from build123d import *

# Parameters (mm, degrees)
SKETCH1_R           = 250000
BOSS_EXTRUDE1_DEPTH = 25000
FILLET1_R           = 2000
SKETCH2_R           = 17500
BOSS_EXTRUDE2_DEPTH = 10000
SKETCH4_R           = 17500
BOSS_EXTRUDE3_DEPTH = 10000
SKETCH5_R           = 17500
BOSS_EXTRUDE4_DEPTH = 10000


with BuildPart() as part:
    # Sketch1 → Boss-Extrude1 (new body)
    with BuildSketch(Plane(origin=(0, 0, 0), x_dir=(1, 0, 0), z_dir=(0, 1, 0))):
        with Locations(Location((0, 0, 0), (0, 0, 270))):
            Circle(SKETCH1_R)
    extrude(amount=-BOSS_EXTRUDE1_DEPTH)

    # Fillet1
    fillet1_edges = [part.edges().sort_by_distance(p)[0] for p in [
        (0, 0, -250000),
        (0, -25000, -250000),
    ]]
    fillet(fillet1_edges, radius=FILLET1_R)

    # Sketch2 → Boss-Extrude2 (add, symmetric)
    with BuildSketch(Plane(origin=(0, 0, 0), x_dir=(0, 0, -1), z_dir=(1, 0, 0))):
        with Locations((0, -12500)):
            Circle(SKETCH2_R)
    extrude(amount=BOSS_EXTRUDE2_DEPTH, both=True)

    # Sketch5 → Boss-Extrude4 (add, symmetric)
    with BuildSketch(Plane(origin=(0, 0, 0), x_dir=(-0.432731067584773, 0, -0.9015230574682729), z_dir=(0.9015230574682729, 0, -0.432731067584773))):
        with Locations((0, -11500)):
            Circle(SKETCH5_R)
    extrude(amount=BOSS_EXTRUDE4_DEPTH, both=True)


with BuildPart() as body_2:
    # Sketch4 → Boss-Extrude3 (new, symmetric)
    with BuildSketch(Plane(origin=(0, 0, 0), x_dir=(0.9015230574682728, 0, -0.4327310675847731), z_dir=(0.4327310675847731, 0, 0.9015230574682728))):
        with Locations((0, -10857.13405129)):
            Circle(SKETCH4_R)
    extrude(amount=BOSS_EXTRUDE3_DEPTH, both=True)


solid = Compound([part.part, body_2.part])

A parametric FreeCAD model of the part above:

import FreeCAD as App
import Part
import Sketcher
from FreeCAD import Vector


def edges_at(feature, points):
    """Names of the edges that pass closest to the given points."""
    edges = feature.Shape.Edges
    near = lambda p: min(range(len(edges)), key=lambda i: edges[i].distToShape(Part.Vertex(*p))[0])
    return sorted({f"Edge{near(p) + 1}" for p in points})

doc = App.newDocument("Part")
body = doc.addObject("PartDesign::Body", "Body")

# Sketch on XZ plane
sketch1 = body.newObject("Sketcher::SketchObject", "Sketch")
sketch1.AttachmentSupport = (doc.getObject("XZ_Plane"), [""])
sketch1.MapMode = "FlatFace"
sketch1.addGeometry(Part.Circle(Vector(0, 0, 0), Vector(0, 0, 1), 250000), False)
sketch1.addConstraint(Sketcher.Constraint("Coincident", 0, 3, -1, 1))
sketch1.addConstraint(Sketcher.Constraint("Diameter", 0, 500000.0))
pad1 = body.newObject("PartDesign::Pad", "Pad")
pad1.Profile = sketch1
pad1.Length = 25000
doc.recompute()

fillet = body.newObject("PartDesign::Fillet", "Fillet")
fillet.Base = (pad1, edges_at(pad1, [(0, 0, -250000), (0, -25000, -250000)]))
fillet.Radius = 2000

# Sketch on YZ plane
sketch2 = body.newObject("Sketcher::SketchObject", "Sketch001")
sketch2.AttachmentSupport = (doc.getObject("YZ_Plane"), [""])
sketch2.MapMode = "FlatFace"
sketch2.addGeometry(Part.Circle(Vector(-12500, 0, 0), Vector(0, 0, 1), 17500), False)
sketch2.addConstraint(Sketcher.Constraint("PointOnObject", 0, 3, -1))
sketch2.addConstraint(Sketcher.Constraint("Diameter", 0, 35000.0))
sketch2.addConstraint(Sketcher.Constraint("DistanceX", 0, 3, -1, 1, 12500.0))
pad2 = body.newObject("PartDesign::Pad", "Pad001")
pad2.Profile = sketch2
pad2.Length = 20000
pad2.Midplane = True

# Sketch on an angled plane
sketch3 = body.newObject("Sketcher::SketchObject", "Sketch002")
sketch3.Placement = App.Placement(Vector(0, 0, 0), App.Rotation(Vector(-0.432731068, 0, -0.901523057), Vector(0, 1, 0), Vector(0.901523057, 0, -0.432731068), "ZXY"))
sketch3.addGeometry(Part.Circle(Vector(0, -11500, 0), Vector(0, 0, 1), 17500), False)
sketch3.addConstraint(Sketcher.Constraint("PointOnObject", 0, 3, -2))
sketch3.addConstraint(Sketcher.Constraint("Diameter", 0, 35000.0))
sketch3.addConstraint(Sketcher.Constraint("DistanceY", 0, 3, -1, 1, 11499.999989))
pad3 = body.newObject("PartDesign::Pad", "Pad002")
pad3.Profile = sketch3
pad3.Length = 20000
pad3.Midplane = True
body2 = doc.addObject("PartDesign::Body", "Body001")

# Sketch on an angled plane
sketch4 = body2.newObject("Sketcher::SketchObject", "Sketch003")
sketch4.Placement = App.Placement(Vector(0, 0, 0), App.Rotation(Vector(0.901523057, 0, -0.432731068), Vector(0, 1, 0), Vector(0.432731068, 0, 0.901523057), "ZXY"))
sketch4.addGeometry(Part.Circle(Vector(0, -10857, 0), Vector(0, 0, 1), 17500), False)
sketch4.addConstraint(Sketcher.Constraint("PointOnObject", 0, 3, -2))
sketch4.addConstraint(Sketcher.Constraint("Diameter", 0, 35000.0))
sketch4.addConstraint(Sketcher.Constraint("DistanceY", 0, 3, -1, 1, 10857.134041))
pad4 = body2.newObject("PartDesign::Pad", "Pad003")
pad4.Profile = sketch4
pad4.Length = 20000
pad4.Midplane = True

doc.recompute()
